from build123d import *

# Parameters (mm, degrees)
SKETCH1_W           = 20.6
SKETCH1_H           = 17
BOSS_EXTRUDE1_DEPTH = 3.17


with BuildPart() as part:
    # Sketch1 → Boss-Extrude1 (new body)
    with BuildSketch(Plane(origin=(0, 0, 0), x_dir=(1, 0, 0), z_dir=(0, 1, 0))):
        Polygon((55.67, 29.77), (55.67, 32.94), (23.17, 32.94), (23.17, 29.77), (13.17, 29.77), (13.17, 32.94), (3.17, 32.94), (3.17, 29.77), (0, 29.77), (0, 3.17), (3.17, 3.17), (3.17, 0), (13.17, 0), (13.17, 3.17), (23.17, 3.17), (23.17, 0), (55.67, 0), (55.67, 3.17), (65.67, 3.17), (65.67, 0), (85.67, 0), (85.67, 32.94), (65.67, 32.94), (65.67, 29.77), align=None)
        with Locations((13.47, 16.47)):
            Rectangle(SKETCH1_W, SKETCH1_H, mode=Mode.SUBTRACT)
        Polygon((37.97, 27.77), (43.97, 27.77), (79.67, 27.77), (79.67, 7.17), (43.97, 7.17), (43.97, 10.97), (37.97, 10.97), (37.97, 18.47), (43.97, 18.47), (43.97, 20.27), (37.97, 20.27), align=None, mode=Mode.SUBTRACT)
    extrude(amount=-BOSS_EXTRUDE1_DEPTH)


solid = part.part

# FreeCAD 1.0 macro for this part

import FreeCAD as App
import Part
import Sketcher
Q = App.Units.Quantity

doc = App.newDocument("Part")
params = doc.addObject("Spreadsheet::Sheet", "Params")
for row, (alias, value) in enumerate([
    ("sketch1_width", "10 mm"),
    ("sketch1_width2", "20 mm"),
    ("sketch1_width3", "6 mm"),
    ("sketch1_height", "17 mm"),
    ("sketch1_width4", "32.5 mm"),
    ("pad1_length", "3.17 mm"),
], start=1):
    params.set(f"A{row}", alias)
    params.set(f"B{row}", "=" + value)
    params.setAlias(f"B{row}", alias)

body = doc.addObject("PartDesign::Body", "Body")

sketch1 = body.newObject("Sketcher::SketchObject", "Sketch")
sketch1.AttachmentSupport = (doc.getObject("XZ_Plane"), [""])
sketch1.MapMode = "FlatFace"
sketch1.addGeometry(Part.LineSegment(App.Vector(55.67, -29.77, 0), App.Vector(55.67, -32.94, 0)), False)
sketch1.addGeometry(Part.LineSegment(App.Vector(55.67, -32.94, 0), App.Vector(23.17, -32.94, 0)), False)
sketch1.addGeometry(Part.LineSegment(App.Vector(23.17, -32.94, 0), App.Vector(23.17, -29.77, 0)), False)
sketch1.addGeometry(Part.LineSegment(App.Vector(23.17, -29.77, 0), App.Vector(13.17, -29.77, 0)), False)
sketch1.addGeometry(Part.LineSegment(App.Vector(13.17, -29.77, 0), App.Vector(13.17, -32.94, 0)), False)
sketch1.addGeometry(Part.LineSegment(App.Vector(13.17, -32.94, 0), App.Vector(3.17, -32.94, 0)), False)
sketch1.addGeometry(Part.LineSegment(App.Vector(3.17, -32.94, 0), App.Vector(3.17, -29.77, 0)), False)
sketch1.addGeometry(Part.LineSegment(App.Vector(3.17, -29.77, 0), App.Vector(0, -29.77, 0)), False)
sketch1.addGeometry(Part.LineSegment(App.Vector(0, -29.77, 0), App.Vector(0, -3.17, 0)), False)
sketch1.addGeometry(Part.LineSegment(App.Vector(0, -3.17, 0), App.Vector(3.17, -3.17, 0)), False)
sketch1.addGeometry(Part.LineSegment(App.Vector(3.17, -3.17, 0), App.Vector(3.17, 0, 0)), False)
sketch1.addGeometry(Part.LineSegment(App.Vector(3.17, 0, 0), App.Vector(13.17, 0, 0)), False)
sketch1.addGeometry(Part.LineSegment(App.Vector(13.17, 0, 0), App.Vector(13.17, -3.17, 0)), False)
sketch1.addGeometry(Part.LineSegment(App.Vector(13.17, -3.17, 0), App.Vector(23.17, -3.17, 0)), False)
sketch1.addGeometry(Part.LineSegment(App.Vector(23.17, -3.17, 0), App.Vector(23.17, 0, 0)), False)
sketch1.addGeometry(Part.LineSegment(App.Vector(23.17, 0, 0), App.Vector(55.67, 0, 0)), False)
sketch1.addGeometry(Part.LineSegment(App.Vector(55.67, 0, 0), App.Vector(55.67, -3.17, 0)), False)
sketch1.addGeometry(Part.LineSegment(App.Vector(55.67, -3.17, 0), App.Vector(65.67, -3.17, 0)), False)
sketch1.addGeometry(Part.LineSegment(App.Vector(65.67, -3.17, 0), App.Vector(65.67, 0, 0)), False)
sketch1.addGeometry(Part.LineSegment(App.Vector(65.67, 0, 0), App.Vector(85.67, 0, 0)), False)
sketch1.addGeometry(Part.LineSegment(App.Vector(85.67, 0, 0), App.Vector(85.67, -32.94, 0)), False)
sketch1.addGeometry(Part.LineSegment(App.Vector(85.67, -32.94, 0), App.Vector(65.67, -32.94, 0)), False)
sketch1.addGeometry(Part.LineSegment(App.Vector(65.67, -32.94, 0), App.Vector(65.67, -29.77, 0)), False)
sketch1.addGeometry(Part.LineSegment(App.Vector(65.67, -29.77, 0), App.Vector(55.67, -29.77, 0)), False)
sketch1.addGeometry(Part.LineSegment(App.Vector(23.77, -7.97, 0), App.Vector(3.17, -7.97, 0)), False)
sketch1.addGeometry(Part.LineSegment(App.Vector(3.17, -7.97, 0), App.Vector(3.17, -24.97, 0)), False)
sketch1.addGeometry(Part.LineSegment(App.Vector(3.17, -24.97, 0), App.Vector(23.77, -24.97, 0)), False)
sketch1.addGeometry(Part.LineSegment(App.Vector(23.77, -24.97, 0), App.Vector(23.77, -7.97, 0)), False)
sketch1.addGeometry(Part.LineSegment(App.Vector(37.97, -20.27, 0), App.Vector(37.97, -27.77, 0)), False)
sketch1.addGeometry(Part.LineSegment(App.Vector(37.97, -27.77, 0), App.Vector(79.67, -27.77, 0)), False)
sketch1.addGeometry(Part.LineSegment(App.Vector(79.67, -27.77, 0), App.Vector(79.67, -7.17, 0)), False)
sketch1.addGeometry(Part.LineSegment(App.Vector(79.67, -7.17, 0), App.Vector(43.97, -7.17, 0)), False)
sketch1.addGeometry(Part.LineSegment(App.Vector(43.97, -7.17, 0), App.Vector(43.97, -10.97, 0)), False)
sketch1.addGeometry(Part.LineSegment(App.Vector(43.97, -10.97, 0), App.Vector(37.97, -10.97, 0)), False)
sketch1.addGeometry(Part.LineSegment(App.Vector(37.97, -10.97, 0), App.Vector(37.97, -18.47, 0)), False)
sketch1.addGeometry(Part.LineSegment(App.Vector(37.97, -18.47, 0), App.Vector(43.97, -18.47, 0)), False)
sketch1.addGeometry(Part.LineSegment(App.Vector(43.97, -18.47, 0), App.Vector(43.97, -20.27, 0)), False)
sketch1.addGeometry(Part.LineSegment(App.Vector(43.97, -20.27, 0), App.Vector(37.97, -20.27, 0)), False)
sketch1.addConstraint(Sketcher.Constraint("Coincident", 0, 2, 1, 1))
sketch1.addConstraint(Sketcher.Constraint("Coincident", 1, 2, 2, 1))
sketch1.addConstraint(Sketcher.Constraint("Coincident", 2, 2, 3, 1))
sketch1.addConstraint(Sketcher.Constraint("Coincident", 3, 2, 4, 1))
sketch1.addConstraint(Sketcher.Constraint("Coincident", 4, 2, 5, 1))
sketch1.addConstraint(Sketcher.Constraint("Coincident", 5, 2, 6, 1))
sketch1.addConstraint(Sketcher.Constraint("Coincident", 6, 2, 7, 1))
sketch1.addConstraint(Sketcher.Constraint("Coincident", 7, 2, 8, 1))
sketch1.addConstraint(Sketcher.Constraint("Coincident", 8, 2, 9, 1))
sketch1.addConstraint(Sketcher.Constraint("Coincident", 9, 2, 10, 1))
sketch1.addConstraint(Sketcher.Constraint("Coincident", 10, 2, 11, 1))
sketch1.addConstraint(Sketcher.Constraint("Coincident", 11, 2, 12, 1))
sketch1.addConstraint(Sketcher.Constraint("Coincident", 12, 2, 13, 1))
sketch1.addConstraint(Sketcher.Constraint("Coincident", 13, 2, 14, 1))
sketch1.addConstraint(Sketcher.Constraint("Coincident", 14, 2, 15, 1))
sketch1.addConstraint(Sketcher.Constraint("Coincident", 15, 2, 16, 1))
sketch1.addConstraint(Sketcher.Constraint("Coincident", 16, 2, 17, 1))
sketch1.addConstraint(Sketcher.Constraint("Coincident", 17, 2, 18, 1))
sketch1.addConstraint(Sketcher.Constraint("Coincident", 18, 2, 19, 1))
sketch1.addConstraint(Sketcher.Constraint("Coincident", 19, 2, 20, 1))
sketch1.addConstraint(Sketcher.Constraint("Coincident", 20, 2, 21, 1))
sketch1.addConstraint(Sketcher.Constraint("Coincident", 21, 2, 22, 1))
sketch1.addConstraint(Sketcher.Constraint("Coincident", 22, 2, 23, 1))
sketch1.addConstraint(Sketcher.Constraint("Coincident", 23, 2, 0, 1))
sketch1.addConstraint(Sketcher.Constraint("Coincident", 24, 2, 25, 1))
sketch1.addConstraint(Sketcher.Constraint("Coincident", 25, 2, 26, 1))
sketch1.addConstraint(Sketcher.Constraint("Coincident", 26, 2, 27, 1))
sketch1.addConstraint(Sketcher.Constraint("Coincident", 27, 2, 24, 1))
sketch1.addConstraint(Sketcher.Constraint("Coincident", 28, 2, 29, 1))
sketch1.addConstraint(Sketcher.Constraint("Coincident", 29, 2, 30, 1))
sketch1.addConstraint(Sketcher.Constraint("Coincident", 30, 2, 31, 1))
sketch1.addConstraint(Sketcher.Constraint("Coincident", 31, 2, 32, 1))
sketch1.addConstraint(Sketcher.Constraint("Coincident", 32, 2, 33, 1))
sketch1.addConstraint(Sketcher.Constraint("Coincident", 33, 2, 34, 1))
sketch1.addConstraint(Sketcher.Constraint("Coincident", 34, 2, 35, 1))
sketch1.addConstraint(Sketcher.Constraint("Coincident", 35, 2, 36, 1))
sketch1.addConstraint(Sketcher.Constraint("Coincident", 36, 2, 37, 1))
sketch1.addConstraint(Sketcher.Constraint("Coincident", 37, 2, 28, 1))
sketch1.addConstraint(Sketcher.Constraint("Vertical", 0))
sketch1.addConstraint(Sketcher.Constraint("Horizontal", 1))
sketch1.addConstraint(Sketcher.Constraint("Vertical", 2))
sketch1.addConstraint(Sketcher.Constraint("Horizontal", 3))
sketch1.addConstraint(Sketcher.Constraint("Vertical", 4))
sketch1.addConstraint(Sketcher.Constraint("Horizontal", 5))
sketch1.addConstraint(Sketcher.Constraint("Vertical", 6))
sketch1.addConstraint(Sketcher.Constraint("Horizontal", 7))
sketch1.addConstraint(Sketcher.Constraint("Vertical", 8))
sketch1.addConstraint(Sketcher.Constraint("Horizontal", 9))
sketch1.addConstraint(Sketcher.Constraint("Vertical", 10))
sketch1.addConstraint(Sketcher.Constraint("Horizontal", 11))
sketch1.addConstraint(Sketcher.Constraint("Vertical", 12))
sketch1.addConstraint(Sketcher.Constraint("Horizontal", 13))
sketch1.addConstraint(Sketcher.Constraint("Vertical", 14))
sketch1.addConstraint(Sketcher.Constraint("Horizontal", 15))
sketch1.addConstraint(Sketcher.Constraint("Vertical", 16))
sketch1.addConstraint(Sketcher.Constraint("Horizontal", 17))
sketch1.addConstraint(Sketcher.Constraint("Vertical", 18))
sketch1.addConstraint(Sketcher.Constraint("Horizontal", 19))
sketch1.addConstraint(Sketcher.Constraint("Vertical", 20))
sketch1.addConstraint(Sketcher.Constraint("Horizontal", 21))
sketch1.addConstraint(Sketcher.Constraint("Vertical", 22))
sketch1.addConstraint(Sketcher.Constraint("Horizontal", 23))
sketch1.addConstraint(Sketcher.Constraint("Horizontal", 24))
sketch1.addConstraint(Sketcher.Constraint("Vertical", 25))
sketch1.addConstraint(Sketcher.Constraint("Horizontal", 26))
sketch1.addConstraint(Sketcher.Constraint("Vertical", 27))
sketch1.addConstraint(Sketcher.Constraint("Vertical", 28))
sketch1.addConstraint(Sketcher.Constraint("Horizontal", 29))
sketch1.addConstraint(Sketcher.Constraint("Vertical", 30))
sketch1.addConstraint(Sketcher.Constraint("Horizontal", 31))
sketch1.addConstraint(Sketcher.Constraint("Vertical", 32))
sketch1.addConstraint(Sketcher.Constraint("Horizontal", 33))
sketch1.addConstraint(Sketcher.Constraint("Vertical", 34))
sketch1.addConstraint(Sketcher.Constraint("Horizontal", 35))
sketch1.addConstraint(Sketcher.Constraint("Vertical", 36))
sketch1.addConstraint(Sketcher.Constraint("Horizontal", 37))
sketch1.addConstraint(Sketcher.Constraint("PointOnObject", 7, 2, -2))
sketch1.addConstraint(Sketcher.Constraint("PointOnObject", 10, 2, -1))
sketch1.addConstraint(Sketcher.Constraint("PointOnObject", 14, 2, -1))
sketch1.addConstraint(Sketcher.Constraint("PointOnObject", 18, 2, -1))
sketch1.addConstraint(Sketcher.Constraint("Horizontal", 1, 2, 4, 2))
sketch1.addConstraint(Sketcher.Constraint("Horizontal", 3, 2, 6, 2))
sketch1.addConstraint(Sketcher.Constraint("Horizontal", 9, 2, 12, 2))
sketch1.addConstraint(Sketcher.Constraint("Horizontal", 13, 2, 16, 2))
sketch1.addConstraint(Sketcher.Constraint("Horizontal", 5, 2, 20, 2))
sketch1.addConstraint(Sketcher.Constraint("Horizontal", 7, 2, 22, 2))
sketch1.addConstraint(Sketcher.Constraint("Vertical", 6, 2, 9, 2))
sketch1.addConstraint(Sketcher.Constraint("Vertical", 4, 2, 11, 2))
sketch1.addConstraint(Sketcher.Constraint("Vertical", 2, 2, 13, 2))
sketch1.addConstraint(Sketcher.Constraint("Vertical", 0, 2, 15, 2))
sketch1.addConstraint(Sketcher.Constraint("Vertical", 18, 2, 21, 2))
sketch1.addConstraint(Sketcher.Constraint("Vertical", 10, 2, 24, 2))
sketch1.addConstraint(Sketcher.Constraint("Vertical", 28, 2, 33, 2))
sketch1.addConstraint(Sketcher.Constraint("Vertical", 32, 2, 35, 2))
sketch1.addConstraint(Sketcher.Constraint("Equal", 3, 5))
sketch1.addConstraint(Sketcher.Constraint("Equal", 13, 17))
sketch1.addConstraint(Sketcher.Constraint("Equal", 9, 0))
sketch1.addConstraint(Sketcher.Constraint("Equal", 6, 10))
sketch1.addConstraint(Sketcher.Constraint("Equal", 26, 30))
sketch1.addConstraint(Sketcher.Constraint("Equal", 28, 34))
sketch1.addConstraint(Sketcher.Constraint("DistanceX", 3, 2, 3, 1, Q("10 mm")))
sketch1.addConstraint(Sketcher.Constraint("DistanceX", 19, 1, 19, 2, Q("20 mm")))
sketch1.addConstraint(Sketcher.Constraint("DistanceX", 33, 2, 33, 1, Q("6 mm")))
sketch1.addConstraint(Sketcher.Constraint("DistanceY", 25, 2, 25, 1, Q("17 mm")))
sketch1.addConstraint(Sketcher.Constraint("DistanceX", 1, 2, 1, 1, Q("32.5 mm")))
sketch1.addConstraint(Sketcher.Constraint("DistanceX", 24, 2, 24, 1, Q("20.6 mm")))
sketch1.addConstraint(Sketcher.Constraint("DistanceX", 29, 1, 29, 2, Q("41.7 mm")))
sketch1.addConstraint(Sketcher.Constraint("DistanceY", 8, 1, 8, 2, Q("26.6 mm")))
sketch1.addConstraint(Sketcher.Constraint("DistanceY", 28, 2, 28, 1, Q("7.5 mm")))
sketch1.addConstraint(Sketcher.Constraint("DistanceY", 32, 2, 32, 1, Q("3.8 mm")))
sketch1.addConstraint(Sketcher.Constraint("DistanceY", 2, 2, 28, 2, Q("2 mm")))
sketch1.addConstraint(Sketcher.Constraint("DistanceX", 29, 2, 20, 2, Q("6 mm")))
sketch1.addConstraint(Sketcher.Constraint("DistanceY", 32, 2, 27, 2, Q("3 mm")))
sketch1.addConstraint(Sketcher.Constraint("DistanceX", 7, 2, 7, 1, Q("3.17 mm")))
sketch1.setExpression("Constraints[100]", "Params.sketch1_width")
sketch1.setExpression("Constraints[101]", "Params.sketch1_width2")
sketch1.setExpression("Constraints[102]", "Params.sketch1_width3")
sketch1.setExpression("Constraints[103]", "Params.sketch1_height")
sketch1.setExpression("Constraints[104]", "Params.sketch1_width4")
pad1 = body.newObject("PartDesign::Pad", "Pad")
pad1.Profile = sketch1
pad1.setExpression("Length", "Params.pad1_length")

doc.recompute()
